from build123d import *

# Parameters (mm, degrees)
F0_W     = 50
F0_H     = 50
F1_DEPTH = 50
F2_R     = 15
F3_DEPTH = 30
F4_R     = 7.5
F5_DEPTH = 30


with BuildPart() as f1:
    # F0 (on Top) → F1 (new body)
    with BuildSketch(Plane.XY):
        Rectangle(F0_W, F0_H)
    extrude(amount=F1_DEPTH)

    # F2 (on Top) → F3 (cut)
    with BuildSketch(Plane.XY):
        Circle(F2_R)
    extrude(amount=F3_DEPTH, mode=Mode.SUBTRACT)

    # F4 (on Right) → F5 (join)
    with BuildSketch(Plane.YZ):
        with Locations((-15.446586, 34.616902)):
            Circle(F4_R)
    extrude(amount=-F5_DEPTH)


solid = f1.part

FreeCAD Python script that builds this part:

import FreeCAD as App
import Part
import Sketcher
from FreeCAD import Vector
Q = App.Units.Quantity

doc = App.newDocument("Part")
body = doc.addObject("PartDesign::Body", "Body")

# Sketch on XY plane
sketch1 = body.newObject("Sketcher::SketchObject", "Sketch")
sketch1.AttachmentSupport = (doc.getObject("XY_Plane"), [""])
sketch1.MapMode = "FlatFace"
sketch1.addGeometry([
    Part.LineSegment(Vector(-25, 25, 0), Vector(-25, -25, 0)),
    Part.LineSegment(Vector(-25, -25, 0), Vector(25, -25, 0)),
    Part.LineSegment(Vector(25, -25, 0), Vector(25, 25, 0)),
    Part.LineSegment(Vector(25, 25, 0), Vector(-25, 25, 0)),
], False)
sketch1.addConstraint([
    Sketcher.Constraint("Coincident", 0, 2, 1, 1),
    Sketcher.Constraint("Coincident", 1, 2, 2, 1),
    Sketcher.Constraint("Coincident", 2, 2, 3, 1),
    Sketcher.Constraint("Coincident", 3, 2, 0, 1),
    Sketcher.Constraint("Vertical", 0),
    Sketcher.Constraint("Horizontal", 1),
    Sketcher.Constraint("Vertical", 2),
    Sketcher.Constraint("Horizontal", 3),
    Sketcher.Constraint("Symmetric", 0, 2, 2, 2, -1, 1),
    Sketcher.Constraint("Equal", 3, 0),
    Sketcher.Constraint("DistanceX", 1, 1, 1, 2, Q("50 mm")),
])
pad1 = body.newObject("PartDesign::Pad", "Pad")
pad1.Profile = sketch1
pad1.Length = 50

# Sketch on XY plane
sketch2 = body.newObject("Sketcher::SketchObject", "Sketch001")
sketch2.AttachmentSupport = (doc.getObject("XY_Plane"), [""])
sketch2.MapMode = "FlatFace"
sketch2.addGeometry(Part.Circle(Vector(0, 0, 0), Vector(0, 0, 1), 15), False)
sketch2.addConstraint([
    Sketcher.Constraint("Coincident", 0, 3, -1, 1),
    Sketcher.Constraint("Diameter", 0, Q("30 mm")),
])
pocket1 = body.newObject("PartDesign::Pocket", "Pocket")
pocket1.Profile = sketch2
pocket1.Length = 30
pocket1.Reversed = True

# Sketch on YZ plane
sketch3 = body.newObject("Sketcher::SketchObject", "Sketch002")
sketch3.AttachmentSupport = (doc.getObject("YZ_Plane"), [""])
sketch3.MapMode = "FlatFace"
sketch3.addGeometry(Part.Circle(Vector(-15, 35, 0), Vector(0, 0, 1), 8), False)
sketch3.addConstraint([
    Sketcher.Constraint("Diameter", 0, Q("15 mm")),
    Sketcher.Constraint("DistanceX", 0, 3, -1, 1, Q("15.446586 mm")),
    Sketcher.Constraint("DistanceY", -1, 1, 0, 3, Q("34.616902 mm")),
])
pad2 = body.newObject("PartDesign::Pad", "Pad001")
pad2.Profile = sketch3
pad2.Length = 30
pad2.Reversed = True

doc.recompute()
